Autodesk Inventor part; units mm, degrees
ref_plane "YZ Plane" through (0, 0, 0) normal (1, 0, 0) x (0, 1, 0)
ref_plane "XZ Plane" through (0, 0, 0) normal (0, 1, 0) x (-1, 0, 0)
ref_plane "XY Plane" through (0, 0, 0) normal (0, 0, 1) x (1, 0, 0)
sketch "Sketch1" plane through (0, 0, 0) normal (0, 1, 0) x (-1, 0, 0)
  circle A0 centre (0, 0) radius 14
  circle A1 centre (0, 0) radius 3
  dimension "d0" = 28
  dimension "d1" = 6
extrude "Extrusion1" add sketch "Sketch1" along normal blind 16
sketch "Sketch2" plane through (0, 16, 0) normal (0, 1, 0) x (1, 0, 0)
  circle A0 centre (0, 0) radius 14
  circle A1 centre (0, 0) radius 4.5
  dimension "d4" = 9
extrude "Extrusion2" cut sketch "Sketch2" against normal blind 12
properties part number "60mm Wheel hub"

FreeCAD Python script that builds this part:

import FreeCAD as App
import Part
import Sketcher
Q = App.Units.Quantity

doc = App.newDocument("Part")
body = doc.addObject("PartDesign::Body", "Body")

# Sketch on XZ plane
sketch1 = body.newObject("Sketcher::SketchObject", "Sketch")
sketch1.AttachmentSupport = (doc.getObject("XZ_Plane"), [""])
sketch1.MapMode = "FlatFace"
sketch1.addGeometry(Part.Circle(App.Vector(0, 0, 0), App.Vector(0, 0, 1), 14), False)
sketch1.addGeometry(Part.Circle(App.Vector(0, 0, 0), App.Vector(0, 0, 1), 3), False)
sketch1.addConstraint(Sketcher.Constraint("Coincident", 0, 3, -1, 1))
sketch1.addConstraint(Sketcher.Constraint("Coincident", 1, 3, -1, 1))
sketch1.addConstraint(Sketcher.Constraint("Diameter", 0, Q("28 mm")))
sketch1.addConstraint(Sketcher.Constraint("Diameter", 1, Q("6 mm")))
pad1 = body.newObject("PartDesign::Pad", "Pad")
pad1.Profile = sketch1
pad1.Length = 16
pad1.Reversed = True

# Sketch on XZ plane
sketch2 = body.newObject("Sketcher::SketchObject", "Sketch001")
sketch2.AttachmentSupport = (doc.getObject("XZ_Plane"), [""])
sketch2.MapMode = "FlatFace"
sketch2.AttachmentOffset = App.Placement(App.Vector(0, 0, -16), App.Rotation())
sketch2.addGeometry(Part.Circle(App.Vector(0, 0, 0), App.Vector(0, 0, 1), 14), False)
sketch2.addGeometry(Part.Circle(App.Vector(0, 0, 0), App.Vector(0, 0, 1), 4.5), False)
sketch2.addConstraint(Sketcher.Constraint("Coincident", 0, 3, -1, 1))
sketch2.addConstraint(Sketcher.Constraint("Coincident", 1, 3, -1, 1))
sketch2.addConstraint(Sketcher.Constraint("Diameter", 1, Q("9 mm")))
sketch2.addConstraint(Sketcher.Constraint("Diameter", 0, Q("28 mm")))
pocket1 = body.newObject("PartDesign::Pocket", "Pocket")
pocket1.Profile = sketch2
pocket1.Length = 12
pocket1.Reversed = True

doc.recompute()
